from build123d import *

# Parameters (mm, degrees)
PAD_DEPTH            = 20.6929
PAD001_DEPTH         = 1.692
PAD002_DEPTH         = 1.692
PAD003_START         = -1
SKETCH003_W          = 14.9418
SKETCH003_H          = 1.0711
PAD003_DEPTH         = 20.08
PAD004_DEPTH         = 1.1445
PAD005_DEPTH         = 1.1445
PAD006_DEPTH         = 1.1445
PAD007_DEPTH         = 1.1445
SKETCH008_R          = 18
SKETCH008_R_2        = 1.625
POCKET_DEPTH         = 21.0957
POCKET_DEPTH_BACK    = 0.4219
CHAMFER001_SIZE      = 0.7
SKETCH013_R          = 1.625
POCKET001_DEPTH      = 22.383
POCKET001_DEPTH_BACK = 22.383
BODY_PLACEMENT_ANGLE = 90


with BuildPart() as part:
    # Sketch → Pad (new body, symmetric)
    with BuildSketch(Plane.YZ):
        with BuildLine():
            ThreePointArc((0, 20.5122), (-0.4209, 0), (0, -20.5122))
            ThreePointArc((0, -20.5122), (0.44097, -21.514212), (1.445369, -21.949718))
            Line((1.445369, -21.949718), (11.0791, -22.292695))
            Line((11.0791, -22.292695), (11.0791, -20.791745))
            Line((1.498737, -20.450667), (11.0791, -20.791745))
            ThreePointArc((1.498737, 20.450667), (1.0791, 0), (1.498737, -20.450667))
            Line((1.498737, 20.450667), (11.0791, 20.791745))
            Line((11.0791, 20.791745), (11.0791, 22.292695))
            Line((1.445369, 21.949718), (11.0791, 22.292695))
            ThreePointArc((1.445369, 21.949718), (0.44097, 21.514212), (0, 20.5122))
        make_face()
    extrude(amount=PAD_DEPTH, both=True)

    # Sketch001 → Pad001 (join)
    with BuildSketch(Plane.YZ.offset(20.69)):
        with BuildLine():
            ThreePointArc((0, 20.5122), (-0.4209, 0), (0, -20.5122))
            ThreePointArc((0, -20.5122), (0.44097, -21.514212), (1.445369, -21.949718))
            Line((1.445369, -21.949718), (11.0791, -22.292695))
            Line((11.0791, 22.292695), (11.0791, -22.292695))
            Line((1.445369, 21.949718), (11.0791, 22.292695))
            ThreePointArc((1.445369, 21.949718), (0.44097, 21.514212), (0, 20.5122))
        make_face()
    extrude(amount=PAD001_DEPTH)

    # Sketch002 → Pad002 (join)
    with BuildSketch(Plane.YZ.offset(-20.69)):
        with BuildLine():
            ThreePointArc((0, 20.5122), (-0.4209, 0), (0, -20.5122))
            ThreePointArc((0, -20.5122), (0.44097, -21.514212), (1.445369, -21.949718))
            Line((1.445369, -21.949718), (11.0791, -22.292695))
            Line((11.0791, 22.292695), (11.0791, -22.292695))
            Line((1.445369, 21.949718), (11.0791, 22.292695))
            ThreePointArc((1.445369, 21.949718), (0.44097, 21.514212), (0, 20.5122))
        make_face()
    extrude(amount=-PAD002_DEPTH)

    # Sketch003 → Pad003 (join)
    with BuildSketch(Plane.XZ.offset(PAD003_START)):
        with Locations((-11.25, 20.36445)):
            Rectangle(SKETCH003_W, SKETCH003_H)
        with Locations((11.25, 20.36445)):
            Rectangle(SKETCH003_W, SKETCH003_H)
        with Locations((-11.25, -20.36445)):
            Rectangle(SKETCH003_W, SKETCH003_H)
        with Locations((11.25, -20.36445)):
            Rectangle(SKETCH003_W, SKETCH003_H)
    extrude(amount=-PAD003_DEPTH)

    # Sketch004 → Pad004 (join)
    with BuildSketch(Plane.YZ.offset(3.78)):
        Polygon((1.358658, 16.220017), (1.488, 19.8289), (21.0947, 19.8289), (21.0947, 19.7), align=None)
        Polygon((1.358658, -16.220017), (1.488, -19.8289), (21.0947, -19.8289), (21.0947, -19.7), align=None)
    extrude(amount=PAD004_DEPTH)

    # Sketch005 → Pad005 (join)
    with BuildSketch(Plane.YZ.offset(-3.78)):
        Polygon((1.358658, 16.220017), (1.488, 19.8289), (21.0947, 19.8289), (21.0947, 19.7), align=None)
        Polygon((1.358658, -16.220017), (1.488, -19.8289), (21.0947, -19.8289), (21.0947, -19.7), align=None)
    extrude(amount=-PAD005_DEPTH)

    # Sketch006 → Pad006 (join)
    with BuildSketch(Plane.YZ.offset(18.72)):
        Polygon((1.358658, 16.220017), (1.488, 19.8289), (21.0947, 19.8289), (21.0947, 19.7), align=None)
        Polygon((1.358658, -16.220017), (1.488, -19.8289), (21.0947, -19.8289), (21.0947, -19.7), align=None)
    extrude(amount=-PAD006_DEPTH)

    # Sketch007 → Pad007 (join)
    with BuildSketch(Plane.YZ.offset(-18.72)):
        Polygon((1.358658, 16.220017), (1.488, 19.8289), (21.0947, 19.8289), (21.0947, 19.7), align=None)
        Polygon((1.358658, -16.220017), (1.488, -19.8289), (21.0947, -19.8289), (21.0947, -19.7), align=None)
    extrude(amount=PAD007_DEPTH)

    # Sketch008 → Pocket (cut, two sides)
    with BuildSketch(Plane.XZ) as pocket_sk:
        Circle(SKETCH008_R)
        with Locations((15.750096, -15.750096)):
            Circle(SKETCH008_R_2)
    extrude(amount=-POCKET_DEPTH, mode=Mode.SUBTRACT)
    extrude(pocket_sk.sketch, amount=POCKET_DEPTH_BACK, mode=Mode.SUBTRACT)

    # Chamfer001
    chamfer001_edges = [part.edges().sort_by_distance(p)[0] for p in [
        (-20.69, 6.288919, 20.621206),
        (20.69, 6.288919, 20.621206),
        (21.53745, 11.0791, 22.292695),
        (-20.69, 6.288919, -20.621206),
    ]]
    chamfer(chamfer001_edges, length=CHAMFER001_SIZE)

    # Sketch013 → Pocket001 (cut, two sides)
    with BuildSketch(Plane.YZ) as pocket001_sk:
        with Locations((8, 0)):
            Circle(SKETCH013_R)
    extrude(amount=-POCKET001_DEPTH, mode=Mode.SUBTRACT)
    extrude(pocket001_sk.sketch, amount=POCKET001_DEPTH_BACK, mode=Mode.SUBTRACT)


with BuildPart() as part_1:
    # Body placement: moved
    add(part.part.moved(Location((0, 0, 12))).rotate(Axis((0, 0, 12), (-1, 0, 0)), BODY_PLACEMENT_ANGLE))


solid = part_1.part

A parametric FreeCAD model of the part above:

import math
import FreeCAD as App
import Part
import Sketcher

V = App.Vector


def edges_at(feature, points):
    """Names of the edges that pass closest to the given points."""
    edges = feature.Shape.Edges
    near = lambda p: min(range(len(edges)), key=lambda i: edges[i].distToShape(Part.Vertex(*p))[0])
    return sorted({f"Edge{near(p) + 1}" for p in points})


def add_polygon(sketch, points):
    """Adds a closed chain of lines whose ends are joined by coincident constraints."""
    first, n = sketch.GeometryCount, len(points)
    for a, b in zip(points, points[1:] + points[:1]):
        sketch.addGeometry(Part.LineSegment(App.Vector(*a, 0), App.Vector(*b, 0)), False)
    for i in range(n):
        sketch.addConstraint(Sketcher.Constraint("Coincident", first + i, 2, first + (i + 1) % n, 1))

doc = App.newDocument("Part")
body = doc.addObject("PartDesign::Body", "Body")

# Sketch on YZ plane
sketch1 = doc.addObject("Sketcher::SketchObject", "Sketch")
body.addObject(sketch1)
sketch1.AttachmentSupport = (doc.YZ_Plane, [""])
sketch1.MapMode = "FlatFace"
sketch1.addGeometry(Part.ArcOfCircle(Part.Circle(V(499.611775, 0, 0), V(0, 0, 1), 500.032675), math.radians(177.648969), math.radians(182.351031)), False)
sketch1.addGeometry(Part.ArcOfCircle(Part.Circle(V(1.498739, -20.450666, 0), V(0, 0, 1), 1.500002), math.radians(-177.648926), math.radians(-92.039007)), False)
sketch1.addGeometry(Part.LineSegment(V(1.445369, -21.949718, 0), V(11.0791, -22.292695, 0)), False)
sketch1.addGeometry(Part.LineSegment(V(11.0791, -22.292695, 0), V(11.0791, -20.791745, 0)), False)
sketch1.addGeometry(Part.LineSegment(V(11.0791, -20.791745, 0), V(1.498737, -20.450667, 0)), False)
sketch1.addGeometry(Part.ArcOfCircle(Part.Circle(V(499.612208, 0, 0), V(0, 0, 1), 498.533108), math.radians(177.648971), math.radians(182.351029)), False)
sketch1.addGeometry(Part.LineSegment(V(1.498737, 20.450667, 0), V(11.0791, 20.791745, 0)), False)
sketch1.addGeometry(Part.LineSegment(V(11.0791, 20.791745, 0), V(11.0791, 22.292695, 0)), False)
sketch1.addGeometry(Part.LineSegment(V(11.0791, 22.292695, 0), V(1.445369, 21.949718, 0)), False)
sketch1.addGeometry(Part.ArcOfCircle(Part.Circle(V(1.498739, 20.450666, 0), V(0, 0, 1), 1.500002), math.radians(92.039007), math.radians(177.648926)), False)
sketch1.addConstraint(Sketcher.Constraint("Coincident", 0, 2, 1, 1))
sketch1.addConstraint(Sketcher.Constraint("Coincident", 1, 2, 2, 1))
sketch1.addConstraint(Sketcher.Constraint("Coincident", 2, 2, 3, 1))
sketch1.addConstraint(Sketcher.Constraint("Coincident", 3, 2, 4, 1))
sketch1.addConstraint(Sketcher.Constraint("Coincident", 4, 2, 5, 2))
sketch1.addConstraint(Sketcher.Constraint("Coincident", 5, 1, 6, 1))
sketch1.addConstraint(Sketcher.Constraint("Coincident", 6, 2, 7, 1))
sketch1.addConstraint(Sketcher.Constraint("Coincident", 7, 2, 8, 1))
sketch1.addConstraint(Sketcher.Constraint("Coincident", 8, 2, 9, 1))
sketch1.addConstraint(Sketcher.Constraint("Coincident", 9, 2, 0, 1))
sketch1.addConstraint(Sketcher.Constraint("Vertical", 3))
sketch1.addConstraint(Sketcher.Constraint("Vertical", 7))
sketch1.addConstraint(Sketcher.Constraint("Coincident", 4, 2, 1, 3))
sketch1.addConstraint(Sketcher.Constraint("Coincident", 5, 1, 9, 3))
sketch1.addConstraint(Sketcher.Constraint("PointOnObject", 0, 3, -1))
sketch1.addConstraint(Sketcher.Constraint("PointOnObject", 5, 3, -1))
sketch1.addConstraint(Sketcher.Constraint("PointOnObject", 0, 2, -2))
sketch1.addConstraint(Sketcher.Constraint("PointOnObject", 9, 2, -2))
sketch1.addConstraint(Sketcher.Constraint("Radius", 1, 1.500002))
sketch1.addConstraint(Sketcher.Constraint("Radius", 5, 498.533108))
sketch1.addConstraint(Sketcher.Constraint("Radius", 0, 500.032675))
sketch1.addConstraint(Sketcher.Constraint("DistanceY", 3, 1, 3, 2, 1.50095))
sketch1.addConstraint(Sketcher.Constraint("DistanceY", 7, 1, 7, 2, 1.50095))
sketch1.addConstraint(Sketcher.Constraint("DistanceY", 0, 2, -1, 1, 20.5122))
sketch1.addConstraint(Sketcher.Constraint("DistanceX", -1, 1, 2, 2, 11.0791))
sketch1.addConstraint(Sketcher.Constraint("DistanceX", -1, 1, 6, 2, 11.0791))
sketch1.addConstraint(Sketcher.Constraint("DistanceX", -1, 1, 1, 3, 1.498739))
sketch1.addConstraint(Sketcher.Constraint("DistanceX", -1, 1, 9, 3, 1.498739))
sketch1.addConstraint(Sketcher.Constraint("DistanceX", -1, 1, 1, 2, 1.445369))
sketch1.addConstraint(Sketcher.Constraint("DistanceX", -1, 1, 8, 2, 1.445369))
sketch1.addConstraint(Sketcher.Constraint("DistanceY", 2, 2, 1, 3, 1.842029))
sketch1.addConstraint(Sketcher.Constraint("DistanceY", 9, 3, 6, 2, 0.341079))
pad1 = doc.addObject("PartDesign::Pad", "Pad")
body.addObject(pad1)
pad1.Profile = sketch1
pad1.Length = 41.3858
pad1.Midplane = True

# Sketch on YZ plane
sketch2 = doc.addObject("Sketcher::SketchObject", "Sketch001")
body.addObject(sketch2)
sketch2.AttachmentSupport = (doc.YZ_Plane, [""])
sketch2.MapMode = "FlatFace"
sketch2.AttachmentOffset = App.Placement(V(0, 0, 20.69), App.Rotation())
sketch2.addGeometry(Part.ArcOfCircle(Part.Circle(V(499.6, 0, 0), V(0, 0, 1), 500), math.radians(177.65), math.radians(182.35)), False)
sketch2.addGeometry(Part.ArcOfCircle(Part.Circle(V(1.5, -20.5, 0), V(0, 0, 1), 1.5), math.radians(-178), math.radians(-92)), False)
sketch2.addGeometry(Part.LineSegment(V(1.4, -21.9, 0), V(11.1, -22.3, 0)), False)
sketch2.addGeometry(Part.LineSegment(V(11.1, -22.3, 0), V(11.1, 22.3, 0)), False)
sketch2.addGeometry(Part.LineSegment(V(11.1, 22.3, 0), V(1.4, 21.9, 0)), False)
sketch2.addGeometry(Part.ArcOfCircle(Part.Circle(V(1.5, 20.5, 0), V(0, 0, 1), 1.5), math.radians(92), math.radians(178)), False)
sketch2.addConstraint(Sketcher.Constraint("Tangent", 0, 2, 1, 1))
sketch2.addConstraint(Sketcher.Constraint("Tangent", 1, 2, 2, 1))
sketch2.addConstraint(Sketcher.Constraint("Coincident", 2, 2, 3, 1))
sketch2.addConstraint(Sketcher.Constraint("Coincident", 3, 2, 4, 1))
sketch2.addConstraint(Sketcher.Constraint("Tangent", 4, 2, 5, 1))
sketch2.addConstraint(Sketcher.Constraint("Tangent", 5, 2, 0, 1))
sketch2.addConstraint(Sketcher.Constraint("Vertical", 3))
sketch2.addConstraint(Sketcher.Constraint("Equal", 1, 5))
sketch2.addConstraint(Sketcher.Constraint("Symmetric", 1, 3, 5, 3, -1))
sketch2.addConstraint(Sketcher.Constraint("PointOnObject", 0, 2, -2))
sketch2.addConstraint(Sketcher.Constraint("Vertical", 1, 2, 4, 2))
sketch2.addConstraint(Sketcher.Constraint("Radius", 1, 1.500002))
sketch2.addConstraint(Sketcher.Constraint("Radius", 0, 500.032675))
sketch2.addConstraint(Sketcher.Constraint("DistanceY", 3, 1, 3, 2, 44.58539))
sketch2.addConstraint(Sketcher.Constraint("DistanceX", -1, 1, 2, 2, 11.0791))
sketch2.addConstraint(Sketcher.Constraint("DistanceY", -1, 1, 5, 2, 20.5122))
pad2 = doc.addObject("PartDesign::Pad", "Pad001")
body.addObject(pad2)
pad2.Profile = sketch2
pad2.Length = 1.692

# Sketch on YZ plane
sketch3 = doc.addObject("Sketcher::SketchObject", "Sketch002")
body.addObject(sketch3)
sketch3.AttachmentSupport = (doc.YZ_Plane, [""])
sketch3.MapMode = "FlatFace"
sketch3.AttachmentOffset = App.Placement(V(0, 0, -20.69), App.Rotation())
sketch3.addGeometry(Part.ArcOfCircle(Part.Circle(V(499.6, 0, 0), V(0, 0, 1), 500), math.radians(177.65), math.radians(182.35)), False)
sketch3.addGeometry(Part.ArcOfCircle(Part.Circle(V(1.5, -20.5, 0), V(0, 0, 1), 1.5), math.radians(-178), math.radians(-92)), False)
sketch3.addGeometry(Part.LineSegment(V(1.4, -21.9, 0), V(11.1, -22.3, 0)), False)
sketch3.addGeometry(Part.LineSegment(V(11.1, -22.3, 0), V(11.1, 22.3, 0)), False)
sketch3.addGeometry(Part.LineSegment(V(11.1, 22.3, 0), V(1.4, 21.9, 0)), False)
sketch3.addGeometry(Part.ArcOfCircle(Part.Circle(V(1.5, 20.5, 0), V(0, 0, 1), 1.5), math.radians(92), math.radians(178)), False)
sketch3.addConstraint(Sketcher.Constraint("Tangent", 0, 2, 1, 1))
sketch3.addConstraint(Sketcher.Constraint("Tangent", 1, 2, 2, 1))
sketch3.addConstraint(Sketcher.Constraint("Coincident", 2, 2, 3, 1))
sketch3.addConstraint(Sketcher.Constraint("Coincident", 3, 2, 4, 1))
sketch3.addConstraint(Sketcher.Constraint("Tangent", 4, 2, 5, 1))
sketch3.addConstraint(Sketcher.Constraint("Tangent", 5, 2, 0, 1))
sketch3.addConstraint(Sketcher.Constraint("Vertical", 3))
sketch3.addConstraint(Sketcher.Constraint("Equal", 1, 5))
sketch3.addConstraint(Sketcher.Constraint("Symmetric", 1, 3, 5, 3, -1))
sketch3.addConstraint(Sketcher.Constraint("PointOnObject", 0, 2, -2))
sketch3.addConstraint(Sketcher.Constraint("Vertical", 1, 2, 4, 2))
sketch3.addConstraint(Sketcher.Constraint("Radius", 1, 1.500002))
sketch3.addConstraint(Sketcher.Constraint("Radius", 0, 500.032675))
sketch3.addConstraint(Sketcher.Constraint("DistanceY", 3, 1, 3, 2, 44.58539))
sketch3.addConstraint(Sketcher.Constraint("DistanceX", -1, 1, 2, 2, 11.0791))
sketch3.addConstraint(Sketcher.Constraint("DistanceY", -1, 1, 5, 2, 20.5122))
pad3 = doc.addObject("PartDesign::Pad", "Pad002")
body.addObject(pad3)
pad3.Profile = sketch3
pad3.Length = 1.692
pad3.Reversed = True

# Sketch on XZ plane
sketch4 = doc.addObject("Sketcher::SketchObject", "Sketch003")
body.addObject(sketch4)
sketch4.AttachmentSupport = (doc.XZ_Plane, [""])
sketch4.MapMode = "FlatFace"
sketch4.AttachmentOffset = App.Placement(V(0, 0, -1), App.Rotation())
add_polygon(sketch4, [(-18.7, 20.9), (-18.7, 19.8), (-3.8, 19.8), (-3.8, 20.9)])  # lines 0-3
add_polygon(sketch4, [(3.8, 20.9), (3.8, 19.8), (18.7, 19.8), (18.7, 20.9)])  # lines 4-7
add_polygon(sketch4, [(-18.7, -19.8), (-18.7, -20.9), (-3.8, -20.9), (-3.8, -19.8)])  # lines 8-11
add_polygon(sketch4, [(3.8, -19.8), (3.8, -20.9), (18.7, -20.9), (18.7, -19.8)])  # lines 12-15
sketch4.addConstraint(Sketcher.Constraint("Vertical", 0))
sketch4.addConstraint(Sketcher.Constraint("Horizontal", 1))
sketch4.addConstraint(Sketcher.Constraint("Vertical", 2))
sketch4.addConstraint(Sketcher.Constraint("Horizontal", 3))
sketch4.addConstraint(Sketcher.Constraint("Vertical", 4))
sketch4.addConstraint(Sketcher.Constraint("Horizontal", 5))
sketch4.addConstraint(Sketcher.Constraint("Vertical", 6))
sketch4.addConstraint(Sketcher.Constraint("Horizontal", 7))
sketch4.addConstraint(Sketcher.Constraint("Vertical", 8))
sketch4.addConstraint(Sketcher.Constraint("Horizontal", 9))
sketch4.addConstraint(Sketcher.Constraint("Vertical", 10))
sketch4.addConstraint(Sketcher.Constraint("Horizontal", 11))
sketch4.addConstraint(Sketcher.Constraint("Vertical", 12))
sketch4.addConstraint(Sketcher.Constraint("Horizontal", 13))
sketch4.addConstraint(Sketcher.Constraint("Vertical", 14))
sketch4.addConstraint(Sketcher.Constraint("Horizontal", 15))
sketch4.addConstraint(Sketcher.Constraint("Symmetric", 6, 2, 8, 2, -1, 1))
sketch4.addConstraint(Sketcher.Constraint("Symmetric", 4, 2, 10, 2, -1, 1))
sketch4.addConstraint(Sketcher.Constraint("Symmetric", 2, 2, 12, 2, -1, 1))
sketch4.addConstraint(Sketcher.Constraint("Symmetric", 0, 2, 14, 2, -1, 1))
sketch4.addConstraint(Sketcher.Constraint("Symmetric", 1, 2, 4, 2, -2))
sketch4.addConstraint(Sketcher.Constraint("Symmetric", 3, 2, 6, 2, -2))
sketch4.addConstraint(Sketcher.Constraint("DistanceY", -1, 1, 2, 2, 20.9))
sketch4.addConstraint(Sketcher.Constraint("DistanceX", 0, 2, 4, 2, 22.5))
sketch4.addConstraint(Sketcher.Constraint("DistanceX", 1, 1, 1, 2, 14.9418))
sketch4.addConstraint(Sketcher.Constraint("DistanceY", 0, 2, 0, 1, 1.0711))
pad4 = doc.addObject("PartDesign::Pad", "Pad003")
body.addObject(pad4)
pad4.Profile = sketch4
pad4.Length = 20.08
pad4.Reversed = True

# Sketch on YZ plane
sketch5 = doc.addObject("Sketcher::SketchObject", "Sketch004")
body.addObject(sketch5)
sketch5.AttachmentSupport = (doc.YZ_Plane, [""])
sketch5.MapMode = "FlatFace"
sketch5.AttachmentOffset = App.Placement(V(0, 0, 3.78), App.Rotation())
add_polygon(sketch5, [(1.49, 19.83), (1.36, 16.22), (21.09, 19.7), (21.09, 19.83)])  # lines 0-3
add_polygon(sketch5, [(1.36, -16.22), (1.49, -19.83), (21.09, -19.83), (21.09, -19.7)])  # lines 4-7
sketch5.addConstraint(Sketcher.Constraint("Vertical", 2))
sketch5.addConstraint(Sketcher.Constraint("Horizontal", 3))
sketch5.addConstraint(Sketcher.Constraint("Horizontal", 5))
sketch5.addConstraint(Sketcher.Constraint("Vertical", 6))
sketch5.addConstraint(Sketcher.Constraint("Symmetric", 3, 2, 4, 2, -1))
sketch5.addConstraint(Sketcher.Constraint("Symmetric", 1, 2, 6, 2, -1))
sketch5.addConstraint(Sketcher.Constraint("Symmetric", 0, 2, 7, 2, -1))
sketch5.addConstraint(Sketcher.Constraint("DistanceY", -1, 1, 1, 2, 19.7))
sketch5.addConstraint(Sketcher.Constraint("DistanceX", 3, 2, 3, 1, 19.6067))
sketch5.addConstraint(Sketcher.Constraint("DistanceY", 2, 1, 2, 2, 0.1289))
sketch5.addConstraint(Sketcher.Constraint("DistanceX", -1, 1, 3, 2, 1.488))
sketch5.addConstraint(Sketcher.Constraint("Distance", 0, 3.6112))
sketch5.addConstraint(Sketcher.Constraint("Distance", 1, 20.0405))
pad5 = doc.addObject("PartDesign::Pad", "Pad004")
body.addObject(pad5)
pad5.Profile = sketch5
pad5.Length = 1.1445

# Sketch on YZ plane
sketch6 = doc.addObject("Sketcher::SketchObject", "Sketch005")
body.addObject(sketch6)
sketch6.AttachmentSupport = (doc.YZ_Plane, [""])
sketch6.MapMode = "FlatFace"
sketch6.AttachmentOffset = App.Placement(V(0, 0, -3.78), App.Rotation())
add_polygon(sketch6, [(1.49, 19.83), (1.36, 16.22), (21.09, 19.7), (21.09, 19.83)])  # lines 0-3
add_polygon(sketch6, [(1.36, -16.22), (1.49, -19.83), (21.09, -19.83), (21.09, -19.7)])  # lines 4-7
sketch6.addConstraint(Sketcher.Constraint("Vertical", 2))
sketch6.addConstraint(Sketcher.Constraint("Horizontal", 3))
sketch6.addConstraint(Sketcher.Constraint("Horizontal", 5))
sketch6.addConstraint(Sketcher.Constraint("Vertical", 6))
sketch6.addConstraint(Sketcher.Constraint("Symmetric", 3, 2, 4, 2, -1))
sketch6.addConstraint(Sketcher.Constraint("Symmetric", 1, 2, 6, 2, -1))
sketch6.addConstraint(Sketcher.Constraint("Symmetric", 0, 2, 7, 2, -1))
sketch6.addConstraint(Sketcher.Constraint("DistanceY", -1, 1, 1, 2, 19.7))
sketch6.addConstraint(Sketcher.Constraint("DistanceX", 3, 2, 3, 1, 19.6067))
sketch6.addConstraint(Sketcher.Constraint("DistanceY", 2, 1, 2, 2, 0.1289))
sketch6.addConstraint(Sketcher.Constraint("DistanceX", -1, 1, 3, 2, 1.488))
sketch6.addConstraint(Sketcher.Constraint("Distance", 0, 3.6112))
sketch6.addConstraint(Sketcher.Constraint("Distance", 1, 20.0405))
pad6 = doc.addObject("PartDesign::Pad", "Pad005")
body.addObject(pad6)
pad6.Profile = sketch6
pad6.Length = 1.1445
pad6.Reversed = True

# Sketch on YZ plane
sketch7 = doc.addObject("Sketcher::SketchObject", "Sketch006")
body.addObject(sketch7)
sketch7.AttachmentSupport = (doc.YZ_Plane, [""])
sketch7.MapMode = "FlatFace"
sketch7.AttachmentOffset = App.Placement(V(0, 0, 18.72), App.Rotation())
add_polygon(sketch7, [(1.49, 19.83), (1.36, 16.22), (21.09, 19.7), (21.09, 19.83)])  # lines 0-3
add_polygon(sketch7, [(1.36, -16.22), (1.49, -19.83), (21.09, -19.83), (21.09, -19.7)])  # lines 4-7
sketch7.addConstraint(Sketcher.Constraint("Vertical", 2))
sketch7.addConstraint(Sketcher.Constraint("Horizontal", 3))
sketch7.addConstraint(Sketcher.Constraint("Horizontal", 5))
sketch7.addConstraint(Sketcher.Constraint("Vertical", 6))
sketch7.addConstraint(Sketcher.Constraint("Symmetric", 3, 2, 4, 2, -1))
sketch7.addConstraint(Sketcher.Constraint("Symmetric", 1, 2, 6, 2, -1))
sketch7.addConstraint(Sketcher.Constraint("Symmetric", 0, 2, 7, 2, -1))
sketch7.addConstraint(Sketcher.Constraint("DistanceY", -1, 1, 1, 2, 19.7))
sketch7.addConstraint(Sketcher.Constraint("DistanceX", 3, 2, 3, 1, 19.6067))
sketch7.addConstraint(Sketcher.Constraint("DistanceY", 2, 1, 2, 2, 0.1289))
sketch7.addConstraint(Sketcher.Constraint("DistanceX", -1, 1, 3, 2, 1.488))
sketch7.addConstraint(Sketcher.Constraint("Distance", 0, 3.6112))
sketch7.addConstraint(Sketcher.Constraint("Distance", 1, 20.0405))
pad7 = doc.addObject("PartDesign::Pad", "Pad006")
body.addObject(pad7)
pad7.Profile = sketch7
pad7.Length = 1.1445
pad7.Reversed = True

# Sketch on YZ plane
sketch8 = doc.addObject("Sketcher::SketchObject", "Sketch007")
body.addObject(sketch8)
sketch8.AttachmentSupport = (doc.YZ_Plane, [""])
sketch8.MapMode = "FlatFace"
sketch8.AttachmentOffset = App.Placement(V(0, 0, -18.72), App.Rotation())
add_polygon(sketch8, [(1.49, 19.83), (1.36, 16.22), (21.09, 19.7), (21.09, 19.83)])  # lines 0-3
add_polygon(sketch8, [(1.36, -16.22), (1.49, -19.83), (21.09, -19.83), (21.09, -19.7)])  # lines 4-7
sketch8.addConstraint(Sketcher.Constraint("Vertical", 2))
sketch8.addConstraint(Sketcher.Constraint("Horizontal", 3))
sketch8.addConstraint(Sketcher.Constraint("Horizontal", 5))
sketch8.addConstraint(Sketcher.Constraint("Vertical", 6))
sketch8.addConstraint(Sketcher.Constraint("Symmetric", 3, 2, 4, 2, -1))
sketch8.addConstraint(Sketcher.Constraint("Symmetric", 1, 2, 6, 2, -1))
sketch8.addConstraint(Sketcher.Constraint("Symmetric", 0, 2, 7, 2, -1))
sketch8.addConstraint(Sketcher.Constraint("DistanceY", -1, 1, 1, 2, 19.7))
sketch8.addConstraint(Sketcher.Constraint("DistanceX", 3, 2, 3, 1, 19.6067))
sketch8.addConstraint(Sketcher.Constraint("DistanceY", 2, 1, 2, 2, 0.1289))
sketch8.addConstraint(Sketcher.Constraint("DistanceX", -1, 1, 3, 2, 1.488))
sketch8.addConstraint(Sketcher.Constraint("Distance", 0, 3.6112))
sketch8.addConstraint(Sketcher.Constraint("Distance", 1, 20.0405))
pad8 = doc.addObject("PartDesign::Pad", "Pad007")
body.addObject(pad8)
pad8.Profile = sketch8
pad8.Length = 1.1445

# Sketch on XZ plane
sketch9 = doc.addObject("Sketcher::SketchObject", "Sketch008")
body.addObject(sketch9)
sketch9.AttachmentSupport = (doc.XZ_Plane, [""])
sketch9.MapMode = "FlatFace"
sketch9.addGeometry(Part.Circle(V(0, 0, 0), V(0, 0, 1), 18), False)
sketch9.addGeometry(Part.Circle(V(15.8, -15.8, 0), V(0, 0, 1), 1.6), False)
sketch9.addConstraint(Sketcher.Constraint("Coincident", 0, 3, -1, 1))
sketch9.addConstraint(Sketcher.Constraint("Diameter", 0, 36.0))
sketch9.addConstraint(Sketcher.Constraint("Diameter", 1, 3.25))
sketch9.addConstraint(Sketcher.Constraint("DistanceX", -1, 1, 1, 3, 15.750096))
sketch9.addConstraint(Sketcher.Constraint("DistanceY", 1, 3, -1, 1, 15.750096))
pocket1 = doc.addObject("PartDesign::Pocket", "Pocket")
body.addObject(pocket1)
pocket1.Profile = sketch9
pocket1.Type = "ThroughAll"
pocket1.Midplane = True
doc.recompute()

chamfer = doc.addObject("PartDesign::Chamfer", "Chamfer")
body.addObject(chamfer)
chamfer.Base = (pocket1, edges_at(pocket1, [
    (-20.69, 6.289, 20.621),
    (20.69, 6.289, 20.621),
    (0, 11.079, 22.293),
    (-20.69, 6.289, -20.621),
]))
chamfer.Size = 0.7

# Sketch on YZ plane
sketch10 = doc.addObject("Sketcher::SketchObject", "Sketch009")
body.addObject(sketch10)
sketch10.AttachmentSupport = (doc.YZ_Plane, [""])
sketch10.MapMode = "FlatFace"
sketch10.addGeometry(Part.Circle(V(8, 0, 0), V(0, 0, 1), 1.6), False)
sketch10.addConstraint(Sketcher.Constraint("PointOnObject", 0, 3, -1))
sketch10.addConstraint(Sketcher.Constraint("Diameter", 0, 3.25))
sketch10.addConstraint(Sketcher.Constraint("DistanceX", -1, 1, 0, 3, 8.0))
pocket2 = doc.addObject("PartDesign::Pocket", "Pocket001")
body.addObject(pocket2)
pocket2.Profile = sketch10
pocket2.Type = "ThroughAll"
pocket2.Midplane = True
body2 = doc.addObject("PartDesign::Body", "Body001")
doc.recompute()

body.Placement = App.Placement(V(0, 0, 12), App.Rotation(V(-1, 0, 0), 90))
boolean = doc.addObject("PartDesign::Boolean", "Boolean")
body2.addObject(boolean)
boolean.Type = "Fuse"
boolean.addObjects([body])

doc.recompute()
